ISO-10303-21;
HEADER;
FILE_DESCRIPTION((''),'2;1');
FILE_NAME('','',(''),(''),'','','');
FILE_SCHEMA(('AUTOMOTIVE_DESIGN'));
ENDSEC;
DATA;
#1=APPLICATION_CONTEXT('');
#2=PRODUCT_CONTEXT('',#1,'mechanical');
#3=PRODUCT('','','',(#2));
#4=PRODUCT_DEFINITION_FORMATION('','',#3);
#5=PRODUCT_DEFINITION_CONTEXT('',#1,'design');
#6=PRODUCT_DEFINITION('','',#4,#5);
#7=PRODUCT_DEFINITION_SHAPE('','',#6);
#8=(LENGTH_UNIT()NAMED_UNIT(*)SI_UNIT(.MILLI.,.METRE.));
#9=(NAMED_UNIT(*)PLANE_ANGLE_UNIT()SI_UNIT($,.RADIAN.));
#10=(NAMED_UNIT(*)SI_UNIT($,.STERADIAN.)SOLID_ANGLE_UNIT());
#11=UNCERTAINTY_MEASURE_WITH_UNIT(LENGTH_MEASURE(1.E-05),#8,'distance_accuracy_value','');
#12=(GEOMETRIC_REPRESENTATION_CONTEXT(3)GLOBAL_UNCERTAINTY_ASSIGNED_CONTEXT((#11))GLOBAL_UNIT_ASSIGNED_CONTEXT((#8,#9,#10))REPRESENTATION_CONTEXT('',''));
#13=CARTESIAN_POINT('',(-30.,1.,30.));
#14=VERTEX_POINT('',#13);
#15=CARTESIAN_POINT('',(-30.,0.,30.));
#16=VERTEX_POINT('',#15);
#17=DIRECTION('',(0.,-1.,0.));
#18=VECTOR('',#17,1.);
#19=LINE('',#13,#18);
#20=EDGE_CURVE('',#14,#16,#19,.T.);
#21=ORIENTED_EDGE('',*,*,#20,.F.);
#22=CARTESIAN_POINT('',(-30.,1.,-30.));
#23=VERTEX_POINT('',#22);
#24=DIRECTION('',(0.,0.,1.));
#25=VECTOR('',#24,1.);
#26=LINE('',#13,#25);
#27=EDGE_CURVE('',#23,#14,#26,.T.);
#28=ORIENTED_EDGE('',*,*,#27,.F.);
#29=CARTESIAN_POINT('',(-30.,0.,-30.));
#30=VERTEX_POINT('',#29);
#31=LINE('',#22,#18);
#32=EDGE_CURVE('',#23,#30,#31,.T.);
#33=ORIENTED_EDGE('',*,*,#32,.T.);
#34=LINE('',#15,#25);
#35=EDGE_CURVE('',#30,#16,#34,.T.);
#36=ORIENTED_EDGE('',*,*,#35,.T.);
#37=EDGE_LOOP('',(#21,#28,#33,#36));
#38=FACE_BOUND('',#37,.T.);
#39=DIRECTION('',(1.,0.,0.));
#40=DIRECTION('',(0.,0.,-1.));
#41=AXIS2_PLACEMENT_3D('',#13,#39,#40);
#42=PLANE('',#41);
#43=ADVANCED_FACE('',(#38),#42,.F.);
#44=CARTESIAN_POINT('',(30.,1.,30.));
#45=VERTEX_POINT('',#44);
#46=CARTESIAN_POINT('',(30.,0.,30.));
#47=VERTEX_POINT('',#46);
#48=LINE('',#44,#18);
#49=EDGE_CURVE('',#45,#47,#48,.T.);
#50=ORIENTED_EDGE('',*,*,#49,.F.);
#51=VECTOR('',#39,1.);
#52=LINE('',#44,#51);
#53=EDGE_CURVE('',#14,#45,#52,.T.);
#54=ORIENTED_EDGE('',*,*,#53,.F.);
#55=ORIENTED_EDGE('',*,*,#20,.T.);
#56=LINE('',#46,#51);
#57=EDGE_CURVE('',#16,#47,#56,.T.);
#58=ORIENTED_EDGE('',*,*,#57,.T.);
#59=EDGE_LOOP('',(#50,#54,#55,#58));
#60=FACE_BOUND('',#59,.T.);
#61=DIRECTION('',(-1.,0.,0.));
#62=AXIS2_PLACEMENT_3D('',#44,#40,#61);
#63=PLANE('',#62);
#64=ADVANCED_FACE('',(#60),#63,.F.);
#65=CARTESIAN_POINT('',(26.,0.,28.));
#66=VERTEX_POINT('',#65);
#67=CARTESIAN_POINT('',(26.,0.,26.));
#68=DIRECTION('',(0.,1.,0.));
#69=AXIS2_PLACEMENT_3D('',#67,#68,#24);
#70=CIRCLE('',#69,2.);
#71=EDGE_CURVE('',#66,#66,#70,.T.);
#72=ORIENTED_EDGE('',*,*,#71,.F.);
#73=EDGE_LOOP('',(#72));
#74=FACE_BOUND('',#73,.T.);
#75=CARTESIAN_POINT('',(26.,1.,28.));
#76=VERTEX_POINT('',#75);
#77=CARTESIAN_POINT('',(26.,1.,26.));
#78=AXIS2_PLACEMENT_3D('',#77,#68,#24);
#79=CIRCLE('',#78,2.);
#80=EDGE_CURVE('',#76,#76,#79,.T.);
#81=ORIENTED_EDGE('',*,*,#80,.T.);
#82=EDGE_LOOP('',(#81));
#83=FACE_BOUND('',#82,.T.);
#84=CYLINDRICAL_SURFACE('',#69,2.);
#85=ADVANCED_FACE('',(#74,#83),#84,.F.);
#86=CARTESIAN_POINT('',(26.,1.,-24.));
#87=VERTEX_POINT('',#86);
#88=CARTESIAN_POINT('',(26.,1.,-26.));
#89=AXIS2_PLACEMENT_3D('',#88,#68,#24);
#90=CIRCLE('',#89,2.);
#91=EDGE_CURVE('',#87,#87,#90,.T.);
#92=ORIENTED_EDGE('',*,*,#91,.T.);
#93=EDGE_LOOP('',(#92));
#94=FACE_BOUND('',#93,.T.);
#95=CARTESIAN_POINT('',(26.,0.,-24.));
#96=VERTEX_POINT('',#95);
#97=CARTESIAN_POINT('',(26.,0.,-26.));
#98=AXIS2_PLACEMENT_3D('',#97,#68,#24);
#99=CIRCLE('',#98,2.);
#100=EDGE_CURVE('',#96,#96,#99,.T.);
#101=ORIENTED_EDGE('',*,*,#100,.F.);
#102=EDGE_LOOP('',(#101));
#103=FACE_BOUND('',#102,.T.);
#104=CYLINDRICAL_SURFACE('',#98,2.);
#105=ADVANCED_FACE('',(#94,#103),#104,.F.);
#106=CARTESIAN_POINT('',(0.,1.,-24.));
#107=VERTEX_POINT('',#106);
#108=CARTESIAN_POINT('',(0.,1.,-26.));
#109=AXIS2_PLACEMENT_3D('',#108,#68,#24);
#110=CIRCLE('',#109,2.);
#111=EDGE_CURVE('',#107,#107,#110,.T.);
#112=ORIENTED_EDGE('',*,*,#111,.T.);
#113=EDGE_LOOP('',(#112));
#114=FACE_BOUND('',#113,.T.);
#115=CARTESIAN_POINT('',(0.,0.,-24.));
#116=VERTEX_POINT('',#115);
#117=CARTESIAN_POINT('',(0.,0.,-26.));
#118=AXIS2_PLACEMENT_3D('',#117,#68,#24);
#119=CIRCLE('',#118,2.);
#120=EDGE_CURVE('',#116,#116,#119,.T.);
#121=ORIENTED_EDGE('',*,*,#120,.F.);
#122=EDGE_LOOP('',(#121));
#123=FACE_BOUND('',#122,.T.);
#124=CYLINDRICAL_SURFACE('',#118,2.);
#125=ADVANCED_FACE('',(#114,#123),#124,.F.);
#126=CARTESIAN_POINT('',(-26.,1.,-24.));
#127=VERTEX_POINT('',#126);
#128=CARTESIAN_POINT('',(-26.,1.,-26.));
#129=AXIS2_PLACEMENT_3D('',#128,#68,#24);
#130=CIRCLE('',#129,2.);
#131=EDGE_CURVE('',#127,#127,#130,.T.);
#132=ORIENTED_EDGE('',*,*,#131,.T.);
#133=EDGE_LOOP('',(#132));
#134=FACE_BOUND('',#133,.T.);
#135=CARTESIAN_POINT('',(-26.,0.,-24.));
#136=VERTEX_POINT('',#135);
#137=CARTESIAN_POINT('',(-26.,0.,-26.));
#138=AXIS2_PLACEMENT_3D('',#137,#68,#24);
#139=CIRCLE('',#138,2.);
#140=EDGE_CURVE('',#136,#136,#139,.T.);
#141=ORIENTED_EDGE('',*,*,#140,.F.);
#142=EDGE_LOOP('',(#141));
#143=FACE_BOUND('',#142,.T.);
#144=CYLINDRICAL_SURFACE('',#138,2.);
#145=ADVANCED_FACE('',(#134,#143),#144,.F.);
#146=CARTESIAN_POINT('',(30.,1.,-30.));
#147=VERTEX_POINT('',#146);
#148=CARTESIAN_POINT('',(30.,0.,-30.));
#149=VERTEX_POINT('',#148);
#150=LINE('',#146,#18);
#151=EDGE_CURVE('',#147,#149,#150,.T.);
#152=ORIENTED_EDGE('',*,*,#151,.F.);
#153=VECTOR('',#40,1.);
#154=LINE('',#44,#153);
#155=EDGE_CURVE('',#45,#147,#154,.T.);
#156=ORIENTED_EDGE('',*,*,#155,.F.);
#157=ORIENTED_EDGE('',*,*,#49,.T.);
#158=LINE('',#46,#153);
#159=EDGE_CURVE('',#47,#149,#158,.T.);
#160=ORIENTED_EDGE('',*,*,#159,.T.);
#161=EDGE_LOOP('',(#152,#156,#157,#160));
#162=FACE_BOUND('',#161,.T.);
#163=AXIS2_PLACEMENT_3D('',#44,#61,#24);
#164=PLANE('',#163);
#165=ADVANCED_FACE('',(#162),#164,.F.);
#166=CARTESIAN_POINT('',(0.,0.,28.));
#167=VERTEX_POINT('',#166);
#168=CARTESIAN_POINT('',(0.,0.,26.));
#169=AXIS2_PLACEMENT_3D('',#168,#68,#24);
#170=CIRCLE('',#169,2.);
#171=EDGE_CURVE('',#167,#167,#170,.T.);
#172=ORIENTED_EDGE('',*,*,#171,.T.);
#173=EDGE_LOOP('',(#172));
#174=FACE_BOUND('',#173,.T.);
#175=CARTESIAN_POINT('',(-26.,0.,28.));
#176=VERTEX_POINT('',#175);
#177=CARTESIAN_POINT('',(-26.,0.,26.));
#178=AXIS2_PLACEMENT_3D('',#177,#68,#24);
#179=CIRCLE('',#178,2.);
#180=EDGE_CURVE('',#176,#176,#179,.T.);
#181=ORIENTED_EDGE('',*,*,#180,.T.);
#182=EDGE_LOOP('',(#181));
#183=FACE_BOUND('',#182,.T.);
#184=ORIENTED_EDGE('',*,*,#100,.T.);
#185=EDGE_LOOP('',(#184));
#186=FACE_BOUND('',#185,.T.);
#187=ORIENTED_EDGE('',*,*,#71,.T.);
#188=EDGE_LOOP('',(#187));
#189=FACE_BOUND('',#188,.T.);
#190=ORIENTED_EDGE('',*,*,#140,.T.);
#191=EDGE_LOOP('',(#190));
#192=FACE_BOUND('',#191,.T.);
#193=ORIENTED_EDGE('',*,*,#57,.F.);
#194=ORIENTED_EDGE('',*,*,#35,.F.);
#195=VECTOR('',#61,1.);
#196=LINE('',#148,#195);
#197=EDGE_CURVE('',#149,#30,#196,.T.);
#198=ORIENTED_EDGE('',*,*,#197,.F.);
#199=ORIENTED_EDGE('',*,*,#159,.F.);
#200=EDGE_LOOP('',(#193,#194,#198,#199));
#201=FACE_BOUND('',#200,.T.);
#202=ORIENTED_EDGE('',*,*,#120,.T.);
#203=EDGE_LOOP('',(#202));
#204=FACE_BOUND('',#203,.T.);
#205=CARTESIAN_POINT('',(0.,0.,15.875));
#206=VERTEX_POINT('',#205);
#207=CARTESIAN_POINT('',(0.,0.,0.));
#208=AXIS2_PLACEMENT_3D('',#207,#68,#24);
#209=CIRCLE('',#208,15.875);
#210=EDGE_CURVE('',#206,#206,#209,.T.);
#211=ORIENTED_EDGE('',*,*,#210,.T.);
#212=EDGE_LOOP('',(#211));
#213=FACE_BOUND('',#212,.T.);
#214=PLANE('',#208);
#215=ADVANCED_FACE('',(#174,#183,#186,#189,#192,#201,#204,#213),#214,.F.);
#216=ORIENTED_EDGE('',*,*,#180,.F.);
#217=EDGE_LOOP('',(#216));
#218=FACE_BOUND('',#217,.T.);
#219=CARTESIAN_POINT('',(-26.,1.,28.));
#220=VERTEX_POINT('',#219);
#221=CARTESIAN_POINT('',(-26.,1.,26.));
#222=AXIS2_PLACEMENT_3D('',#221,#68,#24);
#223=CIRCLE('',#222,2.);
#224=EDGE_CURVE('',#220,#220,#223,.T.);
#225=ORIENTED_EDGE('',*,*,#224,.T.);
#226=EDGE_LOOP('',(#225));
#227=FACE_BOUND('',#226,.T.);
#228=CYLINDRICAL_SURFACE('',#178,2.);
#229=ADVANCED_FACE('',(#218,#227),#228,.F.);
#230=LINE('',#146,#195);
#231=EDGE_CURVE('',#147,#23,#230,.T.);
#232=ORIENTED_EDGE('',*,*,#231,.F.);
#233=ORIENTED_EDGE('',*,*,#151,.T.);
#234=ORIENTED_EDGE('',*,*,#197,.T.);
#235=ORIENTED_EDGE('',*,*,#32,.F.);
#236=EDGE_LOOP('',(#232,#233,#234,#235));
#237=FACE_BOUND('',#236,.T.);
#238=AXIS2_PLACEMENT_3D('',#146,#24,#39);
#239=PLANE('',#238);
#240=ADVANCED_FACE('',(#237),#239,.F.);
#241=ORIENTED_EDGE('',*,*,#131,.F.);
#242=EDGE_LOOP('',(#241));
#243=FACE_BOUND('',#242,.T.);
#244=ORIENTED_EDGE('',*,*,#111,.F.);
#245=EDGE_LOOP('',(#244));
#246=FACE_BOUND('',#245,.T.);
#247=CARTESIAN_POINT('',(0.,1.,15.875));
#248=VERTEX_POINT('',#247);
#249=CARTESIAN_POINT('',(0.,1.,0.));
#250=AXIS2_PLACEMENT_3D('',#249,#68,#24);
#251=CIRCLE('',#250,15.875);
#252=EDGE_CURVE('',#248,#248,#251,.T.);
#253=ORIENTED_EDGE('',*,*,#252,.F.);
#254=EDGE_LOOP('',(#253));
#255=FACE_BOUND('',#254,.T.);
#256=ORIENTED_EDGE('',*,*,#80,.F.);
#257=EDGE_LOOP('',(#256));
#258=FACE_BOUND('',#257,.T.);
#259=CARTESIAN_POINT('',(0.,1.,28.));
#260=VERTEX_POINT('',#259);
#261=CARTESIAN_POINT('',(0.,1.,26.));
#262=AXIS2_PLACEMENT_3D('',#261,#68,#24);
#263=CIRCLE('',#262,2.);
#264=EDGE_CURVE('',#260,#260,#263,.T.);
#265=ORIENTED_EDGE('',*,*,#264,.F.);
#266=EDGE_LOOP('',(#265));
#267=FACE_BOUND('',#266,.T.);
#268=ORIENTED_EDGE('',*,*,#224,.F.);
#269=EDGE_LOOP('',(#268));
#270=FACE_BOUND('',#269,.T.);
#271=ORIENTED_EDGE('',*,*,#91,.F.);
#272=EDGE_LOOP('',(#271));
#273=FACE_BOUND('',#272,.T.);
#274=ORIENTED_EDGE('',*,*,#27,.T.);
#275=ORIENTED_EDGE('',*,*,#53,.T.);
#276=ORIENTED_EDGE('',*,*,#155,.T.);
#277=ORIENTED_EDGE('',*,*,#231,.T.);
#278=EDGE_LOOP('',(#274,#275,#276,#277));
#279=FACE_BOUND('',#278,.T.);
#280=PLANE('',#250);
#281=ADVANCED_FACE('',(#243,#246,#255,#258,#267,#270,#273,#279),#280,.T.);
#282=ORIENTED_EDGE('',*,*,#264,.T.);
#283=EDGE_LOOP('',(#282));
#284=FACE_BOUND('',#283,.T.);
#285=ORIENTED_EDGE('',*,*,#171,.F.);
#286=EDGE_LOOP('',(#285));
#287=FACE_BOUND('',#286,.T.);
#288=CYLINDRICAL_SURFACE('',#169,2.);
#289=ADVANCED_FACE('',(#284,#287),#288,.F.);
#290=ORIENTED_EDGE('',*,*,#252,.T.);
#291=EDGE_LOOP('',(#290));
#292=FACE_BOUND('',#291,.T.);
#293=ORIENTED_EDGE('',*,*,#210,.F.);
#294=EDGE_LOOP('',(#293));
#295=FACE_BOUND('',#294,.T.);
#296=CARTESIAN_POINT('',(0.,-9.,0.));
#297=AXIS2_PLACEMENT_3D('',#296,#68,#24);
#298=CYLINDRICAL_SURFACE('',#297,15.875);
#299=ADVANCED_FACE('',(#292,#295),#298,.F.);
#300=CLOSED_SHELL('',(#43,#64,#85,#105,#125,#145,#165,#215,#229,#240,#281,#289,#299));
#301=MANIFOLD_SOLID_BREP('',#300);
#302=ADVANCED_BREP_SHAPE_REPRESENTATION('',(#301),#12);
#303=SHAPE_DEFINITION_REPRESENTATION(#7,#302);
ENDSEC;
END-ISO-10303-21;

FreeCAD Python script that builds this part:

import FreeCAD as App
import Part
import Sketcher
Q = App.Units.Quantity

doc = App.newDocument("Part")
body = doc.addObject("PartDesign::Body", "Body")

# Sketch on XZ plane
sketch1 = body.newObject("Sketcher::SketchObject", "Sketch")
sketch1.AttachmentSupport = (doc.getObject("XZ_Plane"), [""])
sketch1.MapMode = "FlatFace"
sketch1.addGeometry(Part.LineSegment(App.Vector(-30, -30, 0), App.Vector(-30, 30, 0)), False)
sketch1.addGeometry(Part.LineSegment(App.Vector(-30, 30, 0), App.Vector(30, 30, 0)), False)
sketch1.addGeometry(Part.LineSegment(App.Vector(30, 30, 0), App.Vector(30, -30, 0)), False)
sketch1.addGeometry(Part.LineSegment(App.Vector(30, -30, 0), App.Vector(-30, -30, 0)), False)
sketch1.addConstraint(Sketcher.Constraint("Coincident", 0, 2, 1, 1))
sketch1.addConstraint(Sketcher.Constraint("Coincident", 1, 2, 2, 1))
sketch1.addConstraint(Sketcher.Constraint("Coincident", 2, 2, 3, 1))
sketch1.addConstraint(Sketcher.Constraint("Coincident", 3, 2, 0, 1))
sketch1.addConstraint(Sketcher.Constraint("Vertical", 0))
sketch1.addConstraint(Sketcher.Constraint("Horizontal", 1))
sketch1.addConstraint(Sketcher.Constraint("Vertical", 2))
sketch1.addConstraint(Sketcher.Constraint("Horizontal", 3))
sketch1.addConstraint(Sketcher.Constraint("Symmetric", 0, 2, 2, 2, -1, 1))
sketch1.addConstraint(Sketcher.Constraint("Equal", 3, 0))
sketch1.addConstraint(Sketcher.Constraint("DistanceX", 1, 1, 1, 2, Q("60 mm")))
pad1 = body.newObject("PartDesign::Pad", "Pad")
pad1.Profile = sketch1
pad1.Length = 1
pad1.Reversed = True

# Sketch on XZ plane
sketch2 = body.newObject("Sketcher::SketchObject", "Sketch001")
sketch2.AttachmentSupport = (doc.getObject("XZ_Plane"), [""])
sketch2.MapMode = "FlatFace"
sketch2.AttachmentOffset = App.Placement(App.Vector(0, 0, -1), App.Rotation())
sketch2.addGeometry(Part.Circle(App.Vector(-26, -26, 0), App.Vector(0, 0, 1), 2), False)
sketch2.addGeometry(Part.Circle(App.Vector(0, -26, 0), App.Vector(0, 0, 1), 2), False)
sketch2.addGeometry(Part.Circle(App.Vector(26, -26, 0), App.Vector(0, 0, 1), 2), False)
sketch2.addGeometry(Part.Circle(App.Vector(26, 26, 0), App.Vector(0, 0, 1), 2), False)
sketch2.addGeometry(Part.Circle(App.Vector(0, 26, 0), App.Vector(0, 0, 1), 2), False)
sketch2.addGeometry(Part.Circle(App.Vector(-26, 26, 0), App.Vector(0, 0, 1), 2), False)
sketch2.addConstraint(Sketcher.Constraint("Equal", 0, 1))
sketch2.addConstraint(Sketcher.Constraint("Equal", 1, 2))
sketch2.addConstraint(Sketcher.Constraint("Equal", 2, 3))
sketch2.addConstraint(Sketcher.Constraint("Equal", 3, 4))
sketch2.addConstraint(Sketcher.Constraint("Equal", 4, 5))
sketch2.addConstraint(Sketcher.Constraint("Symmetric", 0, 3, 3, 3, -1, 1))
sketch2.addConstraint(Sketcher.Constraint("Symmetric", 1, 3, 4, 3, -1, 1))
sketch2.addConstraint(Sketcher.Constraint("Symmetric", 2, 3, 5, 3, -1, 1))
sketch2.addConstraint(Sketcher.Constraint("Symmetric", 0, 3, 2, 3, -2))
sketch2.addConstraint(Sketcher.Constraint("PointOnObject", 1, 3, -2))
sketch2.addConstraint(Sketcher.Constraint("Horizontal", 0, 3, 1, 3))
sketch2.addConstraint(Sketcher.Constraint("Diameter", 0, Q("4 mm")))
sketch2.addConstraint(Sketcher.Constraint("DistanceX", 0, 3, -1, 1, Q("26 mm")))
sketch2.addConstraint(Sketcher.Constraint("DistanceY", 0, 3, -1, 1, Q("26 mm")))
pocket1 = body.newObject("PartDesign::Pocket", "Pocket")
pocket1.Profile = sketch2
pocket1.Type = "ThroughAll"
pocket1.Reversed = True

# Sketch on XZ plane
sketch3 = body.newObject("Sketcher::SketchObject", "Sketch002")
sketch3.AttachmentSupport = (doc.getObject("XZ_Plane"), [""])
sketch3.MapMode = "FlatFace"
sketch3.AttachmentOffset = App.Placement(App.Vector(0, 0, -1), App.Rotation())
sketch3.addGeometry(Part.Circle(App.Vector(0, 0, 0), App.Vector(0, 0, 1), 16), False)
sketch3.addConstraint(Sketcher.Constraint("Coincident", 0, 3, -1, 1))
sketch3.addConstraint(Sketcher.Constraint("Diameter", 0, Q("31.75 mm")))
pocket2 = body.newObject("PartDesign::Pocket", "Pocket001")
pocket2.Profile = sketch3
pocket2.Length = 10
pocket2.Reversed = True

doc.recompute()
